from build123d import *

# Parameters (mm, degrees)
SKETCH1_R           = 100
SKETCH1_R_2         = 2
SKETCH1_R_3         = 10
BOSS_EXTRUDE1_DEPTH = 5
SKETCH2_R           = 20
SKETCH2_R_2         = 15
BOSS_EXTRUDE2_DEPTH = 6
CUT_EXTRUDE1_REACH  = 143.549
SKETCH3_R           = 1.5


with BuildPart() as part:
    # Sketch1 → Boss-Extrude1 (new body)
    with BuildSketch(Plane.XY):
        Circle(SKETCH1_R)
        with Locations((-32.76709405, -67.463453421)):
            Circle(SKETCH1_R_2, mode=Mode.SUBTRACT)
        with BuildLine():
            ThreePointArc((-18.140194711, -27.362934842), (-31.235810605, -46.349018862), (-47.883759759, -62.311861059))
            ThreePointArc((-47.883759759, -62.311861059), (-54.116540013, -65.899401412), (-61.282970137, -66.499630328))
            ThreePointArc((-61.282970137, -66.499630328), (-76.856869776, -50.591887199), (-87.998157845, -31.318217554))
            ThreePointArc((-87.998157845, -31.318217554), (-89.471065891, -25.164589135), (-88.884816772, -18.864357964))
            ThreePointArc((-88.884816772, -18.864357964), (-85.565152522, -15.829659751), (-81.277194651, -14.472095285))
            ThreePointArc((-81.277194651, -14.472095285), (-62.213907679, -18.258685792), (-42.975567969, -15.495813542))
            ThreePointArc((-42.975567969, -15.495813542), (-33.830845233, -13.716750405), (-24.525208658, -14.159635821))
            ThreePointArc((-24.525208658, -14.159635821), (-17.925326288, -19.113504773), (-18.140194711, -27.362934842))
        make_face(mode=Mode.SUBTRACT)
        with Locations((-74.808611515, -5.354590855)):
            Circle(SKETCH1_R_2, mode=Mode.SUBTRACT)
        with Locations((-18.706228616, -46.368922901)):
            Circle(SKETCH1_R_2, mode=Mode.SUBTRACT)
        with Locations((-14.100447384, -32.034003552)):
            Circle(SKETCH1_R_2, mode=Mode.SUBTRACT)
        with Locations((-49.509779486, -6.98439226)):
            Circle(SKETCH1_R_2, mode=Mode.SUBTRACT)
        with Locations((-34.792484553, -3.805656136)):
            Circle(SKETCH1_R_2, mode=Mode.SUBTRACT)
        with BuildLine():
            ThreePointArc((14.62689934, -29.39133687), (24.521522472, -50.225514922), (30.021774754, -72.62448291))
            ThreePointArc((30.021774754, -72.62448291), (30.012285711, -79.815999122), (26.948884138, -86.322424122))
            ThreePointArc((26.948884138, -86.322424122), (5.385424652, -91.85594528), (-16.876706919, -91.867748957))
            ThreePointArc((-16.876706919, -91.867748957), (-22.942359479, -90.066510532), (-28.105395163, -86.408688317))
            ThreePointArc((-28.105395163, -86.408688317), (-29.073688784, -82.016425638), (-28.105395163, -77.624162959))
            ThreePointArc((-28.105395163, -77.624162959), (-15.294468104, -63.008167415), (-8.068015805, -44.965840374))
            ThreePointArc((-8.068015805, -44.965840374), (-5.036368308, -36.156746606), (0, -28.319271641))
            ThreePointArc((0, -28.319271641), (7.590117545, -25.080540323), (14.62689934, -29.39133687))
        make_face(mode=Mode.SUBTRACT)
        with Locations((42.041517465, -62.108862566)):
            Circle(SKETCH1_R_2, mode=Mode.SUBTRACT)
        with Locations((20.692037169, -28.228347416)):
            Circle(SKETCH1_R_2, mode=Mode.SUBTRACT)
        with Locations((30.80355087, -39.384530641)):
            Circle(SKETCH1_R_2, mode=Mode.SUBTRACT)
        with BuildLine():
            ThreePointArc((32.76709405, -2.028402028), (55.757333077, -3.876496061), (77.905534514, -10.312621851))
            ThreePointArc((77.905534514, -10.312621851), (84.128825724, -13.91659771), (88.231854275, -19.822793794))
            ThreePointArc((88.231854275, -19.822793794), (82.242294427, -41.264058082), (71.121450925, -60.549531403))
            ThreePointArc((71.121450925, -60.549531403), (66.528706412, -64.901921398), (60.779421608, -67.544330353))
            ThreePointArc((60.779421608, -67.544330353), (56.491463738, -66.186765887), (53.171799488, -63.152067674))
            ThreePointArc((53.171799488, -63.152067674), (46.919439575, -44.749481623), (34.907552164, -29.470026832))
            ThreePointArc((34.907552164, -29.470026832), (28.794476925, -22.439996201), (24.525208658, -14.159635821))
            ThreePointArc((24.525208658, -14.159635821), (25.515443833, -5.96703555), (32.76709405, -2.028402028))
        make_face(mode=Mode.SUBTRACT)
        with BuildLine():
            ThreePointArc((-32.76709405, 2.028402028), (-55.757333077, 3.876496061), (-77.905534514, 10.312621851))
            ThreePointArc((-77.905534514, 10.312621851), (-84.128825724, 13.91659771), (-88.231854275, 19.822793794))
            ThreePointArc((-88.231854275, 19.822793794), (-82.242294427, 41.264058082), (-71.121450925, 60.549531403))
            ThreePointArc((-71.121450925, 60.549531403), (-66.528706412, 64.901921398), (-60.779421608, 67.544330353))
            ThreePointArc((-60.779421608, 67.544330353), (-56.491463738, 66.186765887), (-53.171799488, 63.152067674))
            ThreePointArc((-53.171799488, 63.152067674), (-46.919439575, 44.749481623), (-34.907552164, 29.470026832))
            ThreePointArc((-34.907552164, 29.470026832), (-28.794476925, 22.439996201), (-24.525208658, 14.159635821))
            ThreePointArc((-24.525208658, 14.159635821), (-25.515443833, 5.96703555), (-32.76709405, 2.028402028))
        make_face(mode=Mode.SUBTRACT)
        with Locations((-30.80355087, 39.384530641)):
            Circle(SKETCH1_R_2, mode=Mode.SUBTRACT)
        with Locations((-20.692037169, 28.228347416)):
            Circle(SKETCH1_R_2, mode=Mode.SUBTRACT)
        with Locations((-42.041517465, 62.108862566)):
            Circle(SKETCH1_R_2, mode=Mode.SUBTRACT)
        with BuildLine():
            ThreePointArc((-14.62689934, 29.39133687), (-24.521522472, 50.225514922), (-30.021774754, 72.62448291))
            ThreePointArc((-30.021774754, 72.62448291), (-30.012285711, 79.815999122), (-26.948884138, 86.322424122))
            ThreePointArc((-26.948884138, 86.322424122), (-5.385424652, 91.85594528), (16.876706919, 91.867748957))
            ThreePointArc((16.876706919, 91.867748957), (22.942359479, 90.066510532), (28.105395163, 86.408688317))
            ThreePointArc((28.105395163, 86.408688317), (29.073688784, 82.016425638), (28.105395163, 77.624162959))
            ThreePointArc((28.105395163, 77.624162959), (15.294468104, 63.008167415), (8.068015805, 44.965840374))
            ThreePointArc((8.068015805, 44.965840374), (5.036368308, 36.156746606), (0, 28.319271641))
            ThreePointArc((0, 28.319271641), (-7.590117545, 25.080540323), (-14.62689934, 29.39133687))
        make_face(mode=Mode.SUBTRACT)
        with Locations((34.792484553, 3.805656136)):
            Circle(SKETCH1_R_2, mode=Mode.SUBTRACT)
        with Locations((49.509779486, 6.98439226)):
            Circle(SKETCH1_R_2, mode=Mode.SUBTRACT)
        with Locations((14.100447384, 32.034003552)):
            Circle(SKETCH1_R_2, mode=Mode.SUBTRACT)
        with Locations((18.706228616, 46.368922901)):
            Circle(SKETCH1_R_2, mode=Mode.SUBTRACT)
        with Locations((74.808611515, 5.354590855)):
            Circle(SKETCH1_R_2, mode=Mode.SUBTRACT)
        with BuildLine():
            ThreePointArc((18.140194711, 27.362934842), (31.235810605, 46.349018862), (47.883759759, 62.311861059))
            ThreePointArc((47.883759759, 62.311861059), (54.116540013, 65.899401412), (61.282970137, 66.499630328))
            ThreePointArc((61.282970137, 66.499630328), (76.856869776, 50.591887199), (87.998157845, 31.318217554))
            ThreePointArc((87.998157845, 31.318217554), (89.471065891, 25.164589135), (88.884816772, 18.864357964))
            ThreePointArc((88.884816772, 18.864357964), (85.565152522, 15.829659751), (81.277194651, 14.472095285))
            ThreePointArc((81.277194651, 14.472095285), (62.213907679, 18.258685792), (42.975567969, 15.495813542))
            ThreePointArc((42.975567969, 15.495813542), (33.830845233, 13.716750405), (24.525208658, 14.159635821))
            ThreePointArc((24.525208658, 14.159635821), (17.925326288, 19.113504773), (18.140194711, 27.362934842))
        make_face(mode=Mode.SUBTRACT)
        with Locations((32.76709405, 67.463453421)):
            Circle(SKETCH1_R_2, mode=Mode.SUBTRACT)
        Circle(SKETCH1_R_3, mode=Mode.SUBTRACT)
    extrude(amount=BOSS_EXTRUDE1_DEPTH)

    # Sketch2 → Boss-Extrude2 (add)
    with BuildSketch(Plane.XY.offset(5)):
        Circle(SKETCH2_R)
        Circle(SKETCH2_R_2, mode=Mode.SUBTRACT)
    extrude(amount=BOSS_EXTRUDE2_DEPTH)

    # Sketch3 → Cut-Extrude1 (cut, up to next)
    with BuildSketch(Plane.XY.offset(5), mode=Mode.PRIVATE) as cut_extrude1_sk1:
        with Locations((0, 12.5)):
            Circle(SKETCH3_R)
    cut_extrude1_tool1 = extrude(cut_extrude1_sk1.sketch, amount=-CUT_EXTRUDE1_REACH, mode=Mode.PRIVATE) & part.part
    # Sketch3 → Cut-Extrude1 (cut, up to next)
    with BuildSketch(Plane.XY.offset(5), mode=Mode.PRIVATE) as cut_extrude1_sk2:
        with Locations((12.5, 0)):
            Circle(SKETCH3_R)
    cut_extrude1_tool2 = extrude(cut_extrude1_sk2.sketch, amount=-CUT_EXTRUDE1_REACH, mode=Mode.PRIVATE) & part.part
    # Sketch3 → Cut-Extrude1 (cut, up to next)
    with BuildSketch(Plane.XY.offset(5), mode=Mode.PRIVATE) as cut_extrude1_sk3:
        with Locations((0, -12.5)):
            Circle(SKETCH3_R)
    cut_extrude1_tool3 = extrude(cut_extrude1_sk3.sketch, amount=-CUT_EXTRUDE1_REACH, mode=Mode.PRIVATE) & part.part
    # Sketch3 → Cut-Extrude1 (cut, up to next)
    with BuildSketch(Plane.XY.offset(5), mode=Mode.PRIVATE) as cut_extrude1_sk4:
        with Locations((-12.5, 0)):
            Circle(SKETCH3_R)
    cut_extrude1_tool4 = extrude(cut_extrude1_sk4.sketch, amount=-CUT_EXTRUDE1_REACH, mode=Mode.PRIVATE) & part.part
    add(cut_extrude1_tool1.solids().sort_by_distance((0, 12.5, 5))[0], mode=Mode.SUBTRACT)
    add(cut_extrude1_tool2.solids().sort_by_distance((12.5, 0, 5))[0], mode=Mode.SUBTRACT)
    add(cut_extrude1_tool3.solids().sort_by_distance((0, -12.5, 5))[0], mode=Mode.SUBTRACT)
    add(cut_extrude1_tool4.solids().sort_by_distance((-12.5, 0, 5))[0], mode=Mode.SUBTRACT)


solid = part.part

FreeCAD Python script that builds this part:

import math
import FreeCAD as App
import Part
import Sketcher

doc = App.newDocument("Part")
body = doc.addObject("PartDesign::Body", "Body")

# Sketch on XY plane
sketch1 = body.newObject("Sketcher::SketchObject", "Sketch")
sketch1.AttachmentSupport = (doc.getObject("XY_Plane"), [""])
sketch1.MapMode = "FlatFace"
sketch1.addGeometry(Part.Circle(App.Vector(0, 0, 0), App.Vector(0, 0, 1), 100), False)
sketch1.addGeometry(Part.Circle(App.Vector(-32.767094, -67.463453, 0), App.Vector(0, 0, 1), 2), False)
sketch1.addGeometry(Part.Circle(App.Vector(-18.706229, -46.368923, 0), App.Vector(0, 0, 1), 2), False)
sketch1.addGeometry(Part.ArcOfCircle(Part.Circle(App.Vector(-26.024226, -23.03007, 0), App.Vector(0, 0, 1), 8.996203), math.radians(-28.792083), math.radians(80.408191)), False)
sketch1.addGeometry(Part.ArcOfCircle(Part.Circle(App.Vector(-118.083414, 27.563333, 0), App.Vector(0, 0, 1), 114.041843), math.radians(-52.007341), math.radians(-28.792083)), False)
sketch1.addGeometry(Part.ArcOfCircle(Part.Circle(App.Vector(-59.045881, -50.127455, 0), App.Vector(0, 0, 1), 16.524307), math.radians(-97.780695), math.radians(-47.507236)), False)
sketch1.addGeometry(Part.ArcOfCircle(Part.Circle(App.Vector(-5.940446, 3.258866, 0), App.Vector(0, 0, 1), 89.045173), math.radians(-157.15065), math.radians(-128.426535)), False)
sketch1.addGeometry(Part.ArcOfCircle(Part.Circle(App.Vector(-70.125924, -23.787302, 0), App.Vector(0, 0, 1), 19.394108), math.radians(165.295312), math.radians(202.84935)), False)
sketch1.addGeometry(Part.ArcOfCircle(Part.Circle(App.Vector(-80.342159, -24.876149, 0), App.Vector(0, 0, 1), 10.445986), math.radians(95.135501), math.radians(144.864499)), False)
sketch1.addGeometry(Part.ArcOfCircle(Part.Circle(App.Vector(-60.673454, 39.376197, 0), App.Vector(0, 0, 1), 57.655465), math.radians(-110.938135), math.radians(-72.123916)), False)
sketch1.addGeometry(Part.ArcOfCircle(Part.Circle(App.Vector(-31.016817, -52.573727, 0), App.Vector(0, 0, 1), 38.95874), math.radians(80.408191), math.radians(107.876084)), False)
sketch1.addGeometry(Part.Circle(App.Vector(-74.808612, -5.354591, 0), App.Vector(0, 0, 1), 2), False)
sketch1.addGeometry(Part.Circle(App.Vector(-49.509779, -6.984392, 0), App.Vector(0, 0, 1), 2), False)
sketch1.addGeometry(Part.Circle(App.Vector(-14.100447, -32.034004, 0), App.Vector(0, 0, 1), 2), False)
sketch1.addGeometry(Part.Circle(App.Vector(-34.792485, -3.805656, 0), App.Vector(0, 0, 1), 2), False)
sketch1.addGeometry(Part.ArcOfCircle(Part.Circle(App.Vector(6.932513, -34.052676, 0), App.Vector(0, 0, 1), 8.996203), math.radians(31.207917), math.radians(140.408191)), False)
sketch1.addGeometry(Part.ArcOfCircle(Part.Circle(App.Vector(-82.912253, -88.481569, 0), App.Vector(0, 0, 1), 114.041843), math.radians(7.992659), math.radians(31.207917)), False)
sketch1.addGeometry(Part.ArcOfCircle(Part.Circle(App.Vector(13.888709, -76.19896, 0), App.Vector(0, 0, 1), 16.524307), math.radians(-37.780695), math.radians(12.492764)), False)
sketch1.addGeometry(Part.ArcOfCircle(Part.Circle(App.Vector(-5.792484, -3.515144, 0), App.Vector(0, 0, 1), 89.045173), math.radians(-97.15065), math.radians(-68.426535)), False)
sketch1.addGeometry(Part.ArcOfCircle(Part.Circle(App.Vector(-14.462554, -72.624483, 0), App.Vector(0, 0, 1), 19.394108), math.radians(-134.704688), math.radians(-97.15065)), False)
sketch1.addGeometry(Part.ArcOfCircle(Part.Circle(App.Vector(-18.627702, -82.016426, 0), App.Vector(0, 0, 1), 10.445986), math.radians(155.135501), math.radians(204.864499)), False)
sketch1.addGeometry(Part.ArcOfCircle(Part.Circle(App.Vector(-64.437514, -32.856654, 0), App.Vector(0, 0, 1), 57.655465), math.radians(-50.938135), math.radians(-12.123916)), False)
sketch1.addGeometry(Part.ArcOfCircle(Part.Circle(App.Vector(30.021775, -53.148215, 0), App.Vector(0, 0, 1), 38.95874), math.radians(140.408191), math.radians(167.876084)), False)
sketch1.addGeometry(Part.Circle(App.Vector(42.041517, -62.108863, 0), App.Vector(0, 0, 1), 2), False)
sketch1.addGeometry(Part.Circle(App.Vector(20.692037, -28.228347, 0), App.Vector(0, 0, 1), 2), False)
sketch1.addGeometry(Part.Circle(App.Vector(30.803551, -39.384531, 0), App.Vector(0, 0, 1), 2), False)
sketch1.addGeometry(Part.Circle(App.Vector(0, 0, 0), App.Vector(0, 0, 1), 10), False)
sketch1.addGeometry(Part.ArcOfCircle(Part.Circle(App.Vector(32.956739, -11.022606, 0), App.Vector(0, 0, 1), 8.996203), math.radians(91.207917), math.radians(200.408191)), False)
sketch1.addGeometry(Part.ArcOfCircle(Part.Circle(App.Vector(35.17116, -116.044902, 0), App.Vector(0, 0, 1), 114.041843), math.radians(67.992659), math.radians(91.207917)), False)
sketch1.addGeometry(Part.ArcOfCircle(Part.Circle(App.Vector(72.93459, -26.071505, 0), App.Vector(0, 0, 1), 16.524307), math.radians(22.219305), math.radians(72.492764)), False)
sketch1.addGeometry(Part.ArcOfCircle(Part.Circle(App.Vector(0.147962, -6.77401, 0), App.Vector(0, 0, 1), 89.045173), math.radians(-37.15065), math.radians(-8.426535)), False)
sketch1.addGeometry(Part.ArcOfCircle(Part.Circle(App.Vector(55.66337, -48.837181, 0), App.Vector(0, 0, 1), 19.394108), math.radians(-74.704688), math.radians(-37.15065)), False)
sketch1.addGeometry(Part.ArcOfCircle(Part.Circle(App.Vector(61.714457, -57.140276, 0), App.Vector(0, 0, 1), 10.445986), math.radians(-144.864499), math.radians(-95.135501)), False)
sketch1.addGeometry(Part.ArcOfCircle(Part.Circle(App.Vector(-3.76406, -72.232851, 0), App.Vector(0, 0, 1), 57.655465), math.radians(9.061865), math.radians(47.876084)), False)
sketch1.addGeometry(Part.ArcOfCircle(Part.Circle(App.Vector(61.038592, -0.574488, 0), App.Vector(0, 0, 1), 38.95874), math.radians(-159.591809), math.radians(-132.123916)), False)
sketch1.addGeometry(Part.ArcOfCircle(Part.Circle(App.Vector(-32.956739, 11.022606, 0), App.Vector(0, 0, 1), 8.996203), math.radians(-88.792083), math.radians(20.408191)), False)
sketch1.addGeometry(Part.ArcOfCircle(Part.Circle(App.Vector(-35.17116, 116.044902, 0), App.Vector(0, 0, 1), 114.041843), math.radians(-112.007341), math.radians(-88.792083)), False)
sketch1.addGeometry(Part.ArcOfCircle(Part.Circle(App.Vector(-72.93459, 26.071505, 0), App.Vector(0, 0, 1), 16.524307), math.radians(-157.780695), math.radians(-107.507236)), False)
sketch1.addGeometry(Part.ArcOfCircle(Part.Circle(App.Vector(-0.147962, 6.77401, 0), App.Vector(0, 0, 1), 89.045173), math.radians(142.84935), math.radians(171.573465)), False)
sketch1.addGeometry(Part.ArcOfCircle(Part.Circle(App.Vector(-55.66337, 48.837181, 0), App.Vector(0, 0, 1), 19.394108), math.radians(105.295312), math.radians(142.84935)), False)
sketch1.addGeometry(Part.ArcOfCircle(Part.Circle(App.Vector(-61.714457, 57.140276, 0), App.Vector(0, 0, 1), 10.445986), math.radians(35.135501), math.radians(84.864499)), False)
sketch1.addGeometry(Part.ArcOfCircle(Part.Circle(App.Vector(3.76406, 72.232851, 0), App.Vector(0, 0, 1), 57.655465), math.radians(-170.938135), math.radians(-132.123916)), False)
sketch1.addGeometry(Part.ArcOfCircle(Part.Circle(App.Vector(-61.038592, 0.574488, 0), App.Vector(0, 0, 1), 38.95874), math.radians(20.408191), math.radians(47.876084)), False)
sketch1.addGeometry(Part.Circle(App.Vector(-30.803551, 39.384531, 0), App.Vector(0, 0, 1), 2), False)
sketch1.addGeometry(Part.Circle(App.Vector(-20.692037, 28.228347, 0), App.Vector(0, 0, 1), 2), False)
sketch1.addGeometry(Part.Circle(App.Vector(-42.041517, 62.108863, 0), App.Vector(0, 0, 1), 2), False)
sketch1.addGeometry(Part.ArcOfCircle(Part.Circle(App.Vector(-6.932513, 34.052676, 0), App.Vector(0, 0, 1), 8.996203), math.radians(-148.792083), math.radians(-39.591809)), False)
sketch1.addGeometry(Part.ArcOfCircle(Part.Circle(App.Vector(82.912253, 88.481569, 0), App.Vector(0, 0, 1), 114.041843), math.radians(-172.007341), math.radians(-148.792083)), False)
sketch1.addGeometry(Part.ArcOfCircle(Part.Circle(App.Vector(-13.888709, 76.19896, 0), App.Vector(0, 0, 1), 16.524307), math.radians(142.219305), math.radians(192.492764)), False)
sketch1.addGeometry(Part.ArcOfCircle(Part.Circle(App.Vector(5.792484, 3.515144, 0), App.Vector(0, 0, 1), 89.045173), math.radians(82.84935), math.radians(111.573465)), False)
sketch1.addGeometry(Part.ArcOfCircle(Part.Circle(App.Vector(14.462554, 72.624483, 0), App.Vector(0, 0, 1), 19.394108), math.radians(45.295312), math.radians(82.84935)), False)
sketch1.addGeometry(Part.ArcOfCircle(Part.Circle(App.Vector(18.627702, 82.016426, 0), App.Vector(0, 0, 1), 10.445986), math.radians(-24.864499), math.radians(24.864499)), False)
sketch1.addGeometry(Part.ArcOfCircle(Part.Circle(App.Vector(64.437514, 32.856654, 0), App.Vector(0, 0, 1), 57.655465), math.radians(129.061865), math.radians(167.876084)), False)
sketch1.addGeometry(Part.ArcOfCircle(Part.Circle(App.Vector(-30.021775, 53.148215, 0), App.Vector(0, 0, 1), 38.95874), math.radians(-39.591809), math.radians(-12.123916)), False)
sketch1.addGeometry(Part.Circle(App.Vector(34.792485, 3.805656, 0), App.Vector(0, 0, 1), 2), False)
sketch1.addGeometry(Part.Circle(App.Vector(14.100447, 32.034004, 0), App.Vector(0, 0, 1), 2), False)
sketch1.addGeometry(Part.Circle(App.Vector(49.509779, 6.984392, 0), App.Vector(0, 0, 1), 2), False)
sketch1.addGeometry(Part.Circle(App.Vector(74.808612, 5.354591, 0), App.Vector(0, 0, 1), 2), False)
sketch1.addGeometry(Part.ArcOfCircle(Part.Circle(App.Vector(26.024226, 23.03007, 0), App.Vector(0, 0, 1), 8.996203), math.radians(151.207917), math.radians(260.408191)), False)
sketch1.addGeometry(Part.ArcOfCircle(Part.Circle(App.Vector(118.083414, -27.563333, 0), App.Vector(0, 0, 1), 114.041843), math.radians(127.992659), math.radians(151.207917)), False)
sketch1.addGeometry(Part.ArcOfCircle(Part.Circle(App.Vector(59.045881, 50.127455, 0), App.Vector(0, 0, 1), 16.524307), math.radians(82.219305), math.radians(132.492764)), False)
sketch1.addGeometry(Part.ArcOfCircle(Part.Circle(App.Vector(5.940446, -3.258866, 0), App.Vector(0, 0, 1), 89.045173), math.radians(22.84935), math.radians(51.573465)), False)
sketch1.addGeometry(Part.ArcOfCircle(Part.Circle(App.Vector(70.125924, 23.787302, 0), App.Vector(0, 0, 1), 19.394108), math.radians(-14.704688), math.radians(22.84935)), False)
sketch1.addGeometry(Part.ArcOfCircle(Part.Circle(App.Vector(80.342159, 24.876149, 0), App.Vector(0, 0, 1), 10.445986), math.radians(-84.864499), math.radians(-35.135501)), False)
sketch1.addGeometry(Part.ArcOfCircle(Part.Circle(App.Vector(60.673454, -39.376197, 0), App.Vector(0, 0, 1), 57.655465), math.radians(69.061865), math.radians(107.876084)), False)
sketch1.addGeometry(Part.ArcOfCircle(Part.Circle(App.Vector(31.016817, 52.573727, 0), App.Vector(0, 0, 1), 38.95874), math.radians(-99.591809), math.radians(-72.123916)), False)
sketch1.addGeometry(Part.Circle(App.Vector(18.706229, 46.368923, 0), App.Vector(0, 0, 1), 2), False)
sketch1.addGeometry(Part.Circle(App.Vector(32.767094, 67.463453, 0), App.Vector(0, 0, 1), 2), False)
sketch1.addConstraint(Sketcher.Constraint("Coincident", 3, 1, 4, 2))
sketch1.addConstraint(Sketcher.Constraint("Coincident", 4, 1, 5, 2))
sketch1.addConstraint(Sketcher.Constraint("Coincident", 5, 1, 6, 2))
sketch1.addConstraint(Sketcher.Constraint("Coincident", 6, 1, 7, 2))
sketch1.addConstraint(Sketcher.Constraint("Coincident", 7, 1, 8, 2))
sketch1.addConstraint(Sketcher.Constraint("Coincident", 8, 1, 9, 1))
sketch1.addConstraint(Sketcher.Constraint("Coincident", 9, 2, 10, 2))
sketch1.addConstraint(Sketcher.Constraint("Coincident", 10, 1, 3, 2))
sketch1.addConstraint(Sketcher.Constraint("Coincident", 15, 1, 16, 2))
sketch1.addConstraint(Sketcher.Constraint("Coincident", 16, 1, 17, 2))
sketch1.addConstraint(Sketcher.Constraint("Coincident", 17, 1, 18, 2))
sketch1.addConstraint(Sketcher.Constraint("Coincident", 18, 1, 19, 2))
sketch1.addConstraint(Sketcher.Constraint("Coincident", 19, 1, 20, 2))
sketch1.addConstraint(Sketcher.Constraint("Coincident", 20, 1, 21, 1))
sketch1.addConstraint(Sketcher.Constraint("Coincident", 21, 2, 22, 2))
sketch1.addConstraint(Sketcher.Constraint("Coincident", 22, 1, 15, 2))
sketch1.addConstraint(Sketcher.Constraint("Coincident", 27, 1, 28, 2))
sketch1.addConstraint(Sketcher.Constraint("Coincident", 28, 1, 29, 2))
sketch1.addConstraint(Sketcher.Constraint("Coincident", 29, 1, 30, 2))
sketch1.addConstraint(Sketcher.Constraint("Coincident", 30, 1, 31, 2))
sketch1.addConstraint(Sketcher.Constraint("Coincident", 31, 1, 32, 2))
sketch1.addConstraint(Sketcher.Constraint("Coincident", 32, 1, 33, 1))
sketch1.addConstraint(Sketcher.Constraint("Coincident", 33, 2, 34, 2))
sketch1.addConstraint(Sketcher.Constraint("Coincident", 34, 1, 27, 2))
sketch1.addConstraint(Sketcher.Constraint("Coincident", 35, 1, 36, 2))
sketch1.addConstraint(Sketcher.Constraint("Coincident", 36, 1, 37, 2))
sketch1.addConstraint(Sketcher.Constraint("Coincident", 37, 1, 38, 2))
sketch1.addConstraint(Sketcher.Constraint("Coincident", 38, 1, 39, 2))
sketch1.addConstraint(Sketcher.Constraint("Coincident", 39, 1, 40, 2))
sketch1.addConstraint(Sketcher.Constraint("Coincident", 40, 1, 41, 1))
sketch1.addConstraint(Sketcher.Constraint("Coincident", 41, 2, 42, 2))
sketch1.addConstraint(Sketcher.Constraint("Coincident", 42, 1, 35, 2))
sketch1.addConstraint(Sketcher.Constraint("Coincident", 46, 1, 47, 2))
sketch1.addConstraint(Sketcher.Constraint("Coincident", 47, 1, 48, 2))
sketch1.addConstraint(Sketcher.Constraint("Coincident", 48, 1, 49, 2))
sketch1.addConstraint(Sketcher.Constraint("Coincident", 49, 1, 50, 2))
sketch1.addConstraint(Sketcher.Constraint("Coincident", 50, 1, 51, 2))
sketch1.addConstraint(Sketcher.Constraint("Coincident", 51, 1, 52, 1))
sketch1.addConstraint(Sketcher.Constraint("Coincident", 52, 2, 53, 2))
sketch1.addConstraint(Sketcher.Constraint("Coincident", 53, 1, 46, 2))
sketch1.addConstraint(Sketcher.Constraint("Coincident", 58, 1, 59, 2))
sketch1.addConstraint(Sketcher.Constraint("Coincident", 59, 1, 60, 2))
sketch1.addConstraint(Sketcher.Constraint("Coincident", 60, 1, 61, 2))
sketch1.addConstraint(Sketcher.Constraint("Coincident", 61, 1, 62, 2))
sketch1.addConstraint(Sketcher.Constraint("Coincident", 62, 1, 63, 2))
sketch1.addConstraint(Sketcher.Constraint("Coincident", 63, 1, 64, 1))
sketch1.addConstraint(Sketcher.Constraint("Coincident", 64, 2, 65, 2))
sketch1.addConstraint(Sketcher.Constraint("Coincident", 65, 1, 58, 2))
sketch1.addConstraint(Sketcher.Constraint("Coincident", 0, 3, -1, 1))
sketch1.addConstraint(Sketcher.Constraint("Coincident", 26, 3, -1, 1))
sketch1.addConstraint(Sketcher.Constraint("PointOnObject", 22, 1, -2))
sketch1.addConstraint(Sketcher.Constraint("PointOnObject", 53, 1, -2))
sketch1.addConstraint(Sketcher.Constraint("Diameter", 0, 200.0))
sketch1.addConstraint(Sketcher.Constraint("Diameter", 1, 4.0))
sketch1.addConstraint(Sketcher.Constraint("Diameter", 2, 4.0))
sketch1.addConstraint(Sketcher.Constraint("Diameter", 11, 4.0))
sketch1.addConstraint(Sketcher.Constraint("Diameter", 12, 4.0))
sketch1.addConstraint(Sketcher.Constraint("Diameter", 13, 4.0))
sketch1.addConstraint(Sketcher.Constraint("Diameter", 14, 4.0))
sketch1.addConstraint(Sketcher.Constraint("Diameter", 23, 4.0))
sketch1.addConstraint(Sketcher.Constraint("Diameter", 24, 4.0))
sketch1.addConstraint(Sketcher.Constraint("Diameter", 25, 4.0))
sketch1.addConstraint(Sketcher.Constraint("Diameter", 26, 20.0))
sketch1.addConstraint(Sketcher.Constraint("Diameter", 43, 4.0))
sketch1.addConstraint(Sketcher.Constraint("Diameter", 44, 4.0))
sketch1.addConstraint(Sketcher.Constraint("Diameter", 45, 4.0))
sketch1.addConstraint(Sketcher.Constraint("Diameter", 54, 4.0))
sketch1.addConstraint(Sketcher.Constraint("Diameter", 55, 4.0))
sketch1.addConstraint(Sketcher.Constraint("Diameter", 56, 4.0))
sketch1.addConstraint(Sketcher.Constraint("Diameter", 57, 4.0))
sketch1.addConstraint(Sketcher.Constraint("Diameter", 66, 4.0))
sketch1.addConstraint(Sketcher.Constraint("Diameter", 67, 4.0))
sketch1.addConstraint(Sketcher.Constraint("Radius", 10, 38.95874))
sketch1.addConstraint(Sketcher.Constraint("Radius", 22, 38.95874))
sketch1.addConstraint(Sketcher.Constraint("Radius", 34, 38.95874))
sketch1.addConstraint(Sketcher.Constraint("Radius", 42, 38.95874))
sketch1.addConstraint(Sketcher.Constraint("Radius", 53, 38.95874))
sketch1.addConstraint(Sketcher.Constraint("Radius", 65, 38.95874))
sketch1.addConstraint(Sketcher.Constraint("Radius", 3, 8.996203))
sketch1.addConstraint(Sketcher.Constraint("Radius", 4, 114.041843))
sketch1.addConstraint(Sketcher.Constraint("Radius", 5, 16.524307))
sketch1.addConstraint(Sketcher.Constraint("Radius", 6, 89.045173))
sketch1.addConstraint(Sketcher.Constraint("Radius", 7, 19.394108))
sketch1.addConstraint(Sketcher.Constraint("Radius", 8, 10.445986))
sketch1.addConstraint(Sketcher.Constraint("Radius", 9, 57.655465))
sketch1.addConstraint(Sketcher.Constraint("Radius", 15, 8.996203))
sketch1.addConstraint(Sketcher.Constraint("Radius", 16, 114.041843))
sketch1.addConstraint(Sketcher.Constraint("Radius", 17, 16.524307))
sketch1.addConstraint(Sketcher.Constraint("Radius", 18, 89.045173))
sketch1.addConstraint(Sketcher.Constraint("Radius", 19, 19.394108))
sketch1.addConstraint(Sketcher.Constraint("Radius", 20, 10.445986))
sketch1.addConstraint(Sketcher.Constraint("Radius", 21, 57.655465))
sketch1.addConstraint(Sketcher.Constraint("Radius", 27, 8.996203))
sketch1.addConstraint(Sketcher.Constraint("Radius", 28, 114.041843))
sketch1.addConstraint(Sketcher.Constraint("Radius", 29, 16.524307))
sketch1.addConstraint(Sketcher.Constraint("Radius", 30, 89.045173))
sketch1.addConstraint(Sketcher.Constraint("Radius", 31, 19.394108))
sketch1.addConstraint(Sketcher.Constraint("Radius", 32, 10.445986))
sketch1.addConstraint(Sketcher.Constraint("Radius", 33, 57.655465))
sketch1.addConstraint(Sketcher.Constraint("Radius", 35, 8.996203))
sketch1.addConstraint(Sketcher.Constraint("Radius", 36, 114.041843))
sketch1.addConstraint(Sketcher.Constraint("Radius", 37, 16.524307))
sketch1.addConstraint(Sketcher.Constraint("Radius", 38, 89.045173))
sketch1.addConstraint(Sketcher.Constraint("Radius", 39, 19.394108))
sketch1.addConstraint(Sketcher.Constraint("Radius", 40, 10.445986))
sketch1.addConstraint(Sketcher.Constraint("Radius", 41, 57.655465))
sketch1.addConstraint(Sketcher.Constraint("Radius", 46, 8.996203))
sketch1.addConstraint(Sketcher.Constraint("Radius", 47, 114.041843))
sketch1.addConstraint(Sketcher.Constraint("Radius", 48, 16.524307))
sketch1.addConstraint(Sketcher.Constraint("Radius", 49, 89.045173))
sketch1.addConstraint(Sketcher.Constraint("Radius", 50, 19.394108))
sketch1.addConstraint(Sketcher.Constraint("Radius", 51, 10.445986))
sketch1.addConstraint(Sketcher.Constraint("Radius", 52, 57.655465))
sketch1.addConstraint(Sketcher.Constraint("Radius", 58, 8.996203))
sketch1.addConstraint(Sketcher.Constraint("Radius", 59, 114.041843))
sketch1.addConstraint(Sketcher.Constraint("Radius", 60, 16.524307))
sketch1.addConstraint(Sketcher.Constraint("Radius", 61, 89.045173))
sketch1.addConstraint(Sketcher.Constraint("Radius", 62, 19.394108))
sketch1.addConstraint(Sketcher.Constraint("Radius", 63, 10.445986))
sketch1.addConstraint(Sketcher.Constraint("Radius", 64, 57.655465))
sketch1.addConstraint(Sketcher.Constraint("DistanceY", 7, 3, -1, 1, 23.787302))
sketch1.addConstraint(Sketcher.Constraint("DistanceY", -1, 1, 62, 3, 23.787302))
sketch1.addConstraint(Sketcher.Constraint("DistanceX", -1, 1, 15, 1, 14.626899))
sketch1.addConstraint(Sketcher.Constraint("DistanceX", -1, 1, 32, 1, 53.171799))
sketch1.addConstraint(Sketcher.Constraint("DistanceX", 40, 1, -1, 1, 53.171799))
sketch1.addConstraint(Sketcher.Constraint("DistanceX", 46, 1, -1, 1, 14.626899))
sketch1.addConstraint(Sketcher.Constraint("DistanceX", 2, 3, -1, 1, 18.706229))
sketch1.addConstraint(Sketcher.Constraint("DistanceY", 3, 3, -1, 1, 23.03007))
sketch1.addConstraint(Sketcher.Constraint("DistanceX", 5, 3, -1, 1, 59.045881))
sketch1.addConstraint(Sketcher.Constraint("DistanceX", 8, 3, -1, 1, 80.342159))
sketch1.addConstraint(Sketcher.Constraint("DistanceY", 8, 3, -1, 1, 24.876149))
sketch1.addConstraint(Sketcher.Constraint("DistanceX", 11, 3, -1, 1, 74.808612))
sketch1.addConstraint(Sketcher.Constraint("DistanceY", 11, 3, -1, 1, 5.354591))
sketch1.addConstraint(Sketcher.Constraint("DistanceX", 12, 3, -1, 1, 49.509779))
sketch1.addConstraint(Sketcher.Constraint("DistanceY", 16, 3, -1, 1, 88.481569))
sketch1.addConstraint(Sketcher.Constraint("DistanceX", -1, 1, 17, 3, 13.888709))
sketch1.addConstraint(Sketcher.Constraint("DistanceY", 17, 3, -1, 1, 76.19896))
sketch1.addConstraint(Sketcher.Constraint("DistanceX", -1, 1, 25, 3, 30.803551))
sketch1.addConstraint(Sketcher.Constraint("DistanceY", 25, 3, -1, 1, 39.384531))
sketch1.addConstraint(Sketcher.Constraint("DistanceX", -1, 1, 27, 3, 32.956739))
sketch1.addConstraint(Sketcher.Constraint("DistanceX", -1, 1, 28, 3, 35.17116))
sketch1.addConstraint(Sketcher.Constraint("DistanceX", -1, 1, 29, 3, 72.93459))
sketch1.addConstraint(Sketcher.Constraint("DistanceX", -1, 1, 30, 3, 0.147962))
sketch1.addConstraint(Sketcher.Constraint("DistanceY", 30, 3, -1, 1, 6.77401))
sketch1.addConstraint(Sketcher.Constraint("DistanceX", -1, 1, 31, 3, 55.66337))
sketch1.addConstraint(Sketcher.Constraint("DistanceX", 33, 3, -1, 1, 3.76406))
sketch1.addConstraint(Sketcher.Constraint("DistanceY", 33, 3, -1, 1, 72.232851))
sketch1.addConstraint(Sketcher.Constraint("DistanceY", 34, 3, -1, 1, 0.574488))
sketch1.addConstraint(Sketcher.Constraint("DistanceX", 35, 3, -1, 1, 32.956739))
sketch1.addConstraint(Sketcher.Constraint("DistanceX", 36, 3, -1, 1, 35.17116))
sketch1.addConstraint(Sketcher.Constraint("DistanceX", 37, 3, -1, 1, 72.93459))
sketch1.addConstraint(Sketcher.Constraint("DistanceX", 38, 3, -1, 1, 0.147962))
sketch1.addConstraint(Sketcher.Constraint("DistanceY", -1, 1, 38, 3, 6.77401))
sketch1.addConstraint(Sketcher.Constraint("DistanceX", 39, 3, -1, 1, 55.66337))
sketch1.addConstraint(Sketcher.Constraint("DistanceX", -1, 1, 41, 3, 3.76406))
sketch1.addConstraint(Sketcher.Constraint("DistanceY", -1, 1, 41, 3, 72.232851))
sketch1.addConstraint(Sketcher.Constraint("DistanceY", -1, 1, 42, 3, 0.574488))
sketch1.addConstraint(Sketcher.Constraint("DistanceX", 43, 3, -1, 1, 30.803551))
sketch1.addConstraint(Sketcher.Constraint("DistanceY", -1, 1, 43, 3, 39.384531))
sketch1.addConstraint(Sketcher.Constraint("DistanceY", -1, 1, 47, 3, 88.481569))
sketch1.addConstraint(Sketcher.Constraint("DistanceX", 48, 3, -1, 1, 13.888709))
sketch1.addConstraint(Sketcher.Constraint("DistanceY", -1, 1, 48, 3, 76.19896))
sketch1.addConstraint(Sketcher.Constraint("DistanceX", -1, 1, 56, 3, 49.509779))
sketch1.addConstraint(Sketcher.Constraint("DistanceX", -1, 1, 57, 3, 74.808612))
sketch1.addConstraint(Sketcher.Constraint("DistanceY", -1, 1, 57, 3, 5.354591))
sketch1.addConstraint(Sketcher.Constraint("DistanceY", -1, 1, 58, 3, 23.03007))
sketch1.addConstraint(Sketcher.Constraint("DistanceX", -1, 1, 60, 3, 59.045881))
sketch1.addConstraint(Sketcher.Constraint("DistanceX", -1, 1, 63, 3, 80.342159))
sketch1.addConstraint(Sketcher.Constraint("DistanceY", -1, 1, 63, 3, 24.876149))
sketch1.addConstraint(Sketcher.Constraint("DistanceX", -1, 1, 66, 3, 18.706229))
sketch1.addConstraint(Sketcher.Constraint("DistanceX", 4, 1, -1, 1, 47.88376))
sketch1.addConstraint(Sketcher.Constraint("DistanceY", 4, 1, -1, 1, 62.311861))
sketch1.addConstraint(Sketcher.Constraint("DistanceX", 5, 1, -1, 1, 61.28297))
sketch1.addConstraint(Sketcher.Constraint("DistanceX", 10, 1, -1, 1, 24.525209))
sketch1.addConstraint(Sketcher.Constraint("DistanceY", 18, 1, -1, 1, 91.867749))
sketch1.addConstraint(Sketcher.Constraint("DistanceY", 19, 1, -1, 1, 86.408688))
sketch1.addConstraint(Sketcher.Constraint("DistanceY", 21, 2, -1, 1, 44.96584))
sketch1.addConstraint(Sketcher.Constraint("DistanceY", 22, 1, -1, 1, 28.319272))
sketch1.addConstraint(Sketcher.Constraint("DistanceY", 28, 1, -1, 1, 10.312622))
sketch1.addConstraint(Sketcher.Constraint("DistanceX", -1, 1, 30, 1, 71.121451))
sketch1.addConstraint(Sketcher.Constraint("DistanceX", -1, 1, 31, 1, 60.779422))
sketch1.addConstraint(Sketcher.Constraint("DistanceX", -1, 1, 34, 1, 24.525209))
sketch1.addConstraint(Sketcher.Constraint("DistanceY", -1, 1, 36, 1, 10.312622))
sketch1.addConstraint(Sketcher.Constraint("DistanceX", 38, 1, -1, 1, 71.121451))
sketch1.addConstraint(Sketcher.Constraint("DistanceX", 39, 1, -1, 1, 60.779422))
sketch1.addConstraint(Sketcher.Constraint("DistanceX", 42, 1, -1, 1, 24.525209))
sketch1.addConstraint(Sketcher.Constraint("DistanceY", -1, 1, 49, 1, 91.867749))
sketch1.addConstraint(Sketcher.Constraint("DistanceY", -1, 1, 50, 1, 86.408688))
sketch1.addConstraint(Sketcher.Constraint("DistanceY", -1, 1, 52, 2, 44.96584))
sketch1.addConstraint(Sketcher.Constraint("DistanceY", -1, 1, 53, 1, 28.319272))
sketch1.addConstraint(Sketcher.Constraint("DistanceX", -1, 1, 59, 1, 47.88376))
sketch1.addConstraint(Sketcher.Constraint("DistanceY", -1, 1, 59, 1, 62.311861))
sketch1.addConstraint(Sketcher.Constraint("DistanceX", -1, 1, 60, 1, 61.28297))
sketch1.addConstraint(Sketcher.Constraint("DistanceX", -1, 1, 65, 1, 24.525209))
sketch1.addConstraint(Sketcher.Constraint("DistanceX", 1, 3, -1, 1, 32.767094))
sketch1.addConstraint(Sketcher.Constraint("DistanceY", 1, 3, -1, 1, 67.463453))
sketch1.addConstraint(Sketcher.Constraint("DistanceY", 2, 3, -1, 1, 46.368923))
sketch1.addConstraint(Sketcher.Constraint("DistanceX", 3, 3, -1, 1, 26.024226))
sketch1.addConstraint(Sketcher.Constraint("DistanceX", 6, 3, -1, 1, 5.940446))
sketch1.addConstraint(Sketcher.Constraint("DistanceX", 9, 3, -1, 1, 60.673454))
sketch1.addConstraint(Sketcher.Constraint("DistanceY", -1, 1, 9, 3, 39.376197))
sketch1.addConstraint(Sketcher.Constraint("DistanceY", 12, 3, -1, 1, 6.984392))
sketch1.addConstraint(Sketcher.Constraint("DistanceX", 13, 3, -1, 1, 14.100447))
sketch1.addConstraint(Sketcher.Constraint("DistanceY", 13, 3, -1, 1, 32.034004))
sketch1.addConstraint(Sketcher.Constraint("DistanceX", 14, 3, -1, 1, 34.792485))
sketch1.addConstraint(Sketcher.Constraint("DistanceY", 14, 3, -1, 1, 3.805656))
sketch1.addConstraint(Sketcher.Constraint("DistanceX", -1, 1, 15, 3, 6.932513))
sketch1.addConstraint(Sketcher.Constraint("DistanceX", 18, 3, -1, 1, 5.792484))
sketch1.addConstraint(Sketcher.Constraint("DistanceY", 18, 3, -1, 1, 3.515144))
sketch1.addConstraint(Sketcher.Constraint("DistanceX", 19, 3, -1, 1, 14.462554))
sketch1.addConstraint(Sketcher.Constraint("DistanceX", 20, 3, -1, 1, 18.627702))
sketch1.addConstraint(Sketcher.Constraint("DistanceX", 21, 3, -1, 1, 64.437514))
sketch1.addConstraint(Sketcher.Constraint("DistanceY", 21, 3, -1, 1, 32.856654))
sketch1.addConstraint(Sketcher.Constraint("DistanceX", -1, 1, 23, 3, 42.041517))
sketch1.addConstraint(Sketcher.Constraint("DistanceY", 23, 3, -1, 1, 62.108863))
sketch1.addConstraint(Sketcher.Constraint("DistanceX", -1, 1, 24, 3, 20.692037))
sketch1.addConstraint(Sketcher.Constraint("DistanceY", 24, 3, -1, 1, 28.228347))
sketch1.addConstraint(Sketcher.Constraint("DistanceX", 44, 3, -1, 1, 20.692037))
sketch1.addConstraint(Sketcher.Constraint("DistanceY", -1, 1, 44, 3, 28.228347))
sketch1.addConstraint(Sketcher.Constraint("DistanceX", 45, 3, -1, 1, 42.041517))
sketch1.addConstraint(Sketcher.Constraint("DistanceY", -1, 1, 45, 3, 62.108863))
sketch1.addConstraint(Sketcher.Constraint("DistanceX", 46, 3, -1, 1, 6.932513))
sketch1.addConstraint(Sketcher.Constraint("DistanceX", -1, 1, 49, 3, 5.792484))
sketch1.addConstraint(Sketcher.Constraint("DistanceY", -1, 1, 49, 3, 3.515144))
sketch1.addConstraint(Sketcher.Constraint("DistanceX", -1, 1, 50, 3, 14.462554))
sketch1.addConstraint(Sketcher.Constraint("DistanceX", -1, 1, 51, 3, 18.627702))
sketch1.addConstraint(Sketcher.Constraint("DistanceX", -1, 1, 52, 3, 64.437514))
sketch1.addConstraint(Sketcher.Constraint("DistanceY", -1, 1, 52, 3, 32.856654))
sketch1.addConstraint(Sketcher.Constraint("DistanceX", -1, 1, 54, 3, 34.792485))
sketch1.addConstraint(Sketcher.Constraint("DistanceY", -1, 1, 54, 3, 3.805656))
sketch1.addConstraint(Sketcher.Constraint("DistanceX", -1, 1, 55, 3, 14.100447))
sketch1.addConstraint(Sketcher.Constraint("DistanceY", -1, 1, 55, 3, 32.034004))
sketch1.addConstraint(Sketcher.Constraint("DistanceY", -1, 1, 56, 3, 6.984392))
sketch1.addConstraint(Sketcher.Constraint("DistanceX", -1, 1, 58, 3, 26.024226))
sketch1.addConstraint(Sketcher.Constraint("DistanceX", -1, 1, 61, 3, 5.940446))
sketch1.addConstraint(Sketcher.Constraint("DistanceX", -1, 1, 64, 3, 60.673454))
sketch1.addConstraint(Sketcher.Constraint("DistanceY", 64, 3, -1, 1, 39.376197))
sketch1.addConstraint(Sketcher.Constraint("DistanceY", -1, 1, 66, 3, 46.368923))
sketch1.addConstraint(Sketcher.Constraint("DistanceX", -1, 1, 67, 3, 32.767094))
sketch1.addConstraint(Sketcher.Constraint("DistanceY", -1, 1, 67, 3, 67.463453))
sketch1.addConstraint(Sketcher.Constraint("DistanceX", 3, 1, -1, 1, 18.140195))
sketch1.addConstraint(Sketcher.Constraint("DistanceX", 6, 1, -1, 1, 87.998158))
sketch1.addConstraint(Sketcher.Constraint("DistanceX", 9, 2, -1, 1, 42.975568))
sketch1.addConstraint(Sketcher.Constraint("DistanceX", -1, 1, 27, 1, 32.767094))
sketch1.addConstraint(Sketcher.Constraint("DistanceX", -1, 1, 33, 2, 34.907552))
sketch1.addConstraint(Sketcher.Constraint("DistanceX", 35, 1, -1, 1, 32.767094))
sketch1.addConstraint(Sketcher.Constraint("DistanceX", 41, 2, -1, 1, 34.907552))
sketch1.addConstraint(Sketcher.Constraint("DistanceX", -1, 1, 58, 1, 18.140195))
sketch1.addConstraint(Sketcher.Constraint("DistanceX", -1, 1, 61, 1, 87.998158))
sketch1.addConstraint(Sketcher.Constraint("DistanceX", -1, 1, 64, 2, 42.975568))
pad1 = body.newObject("PartDesign::Pad", "Pad")
pad1.Profile = sketch1
pad1.Length = 5

# Sketch on XY plane
sketch2 = body.newObject("Sketcher::SketchObject", "Sketch001")
sketch2.AttachmentSupport = (doc.getObject("XY_Plane"), [""])
sketch2.MapMode = "FlatFace"
sketch2.AttachmentOffset = App.Placement(App.Vector(0, 0, 5), App.Rotation())
sketch2.addGeometry(Part.Circle(App.Vector(0, 0, 0), App.Vector(0, 0, 1), 20), False)
sketch2.addGeometry(Part.Circle(App.Vector(0, 0, 0), App.Vector(0, 0, 1), 15), False)
sketch2.addConstraint(Sketcher.Constraint("Coincident", 0, 3, -1, 1))
sketch2.addConstraint(Sketcher.Constraint("Coincident", 1, 3, -1, 1))
sketch2.addConstraint(Sketcher.Constraint("Diameter", 0, 40.0))
sketch2.addConstraint(Sketcher.Constraint("Diameter", 1, 30.0))
pad2 = body.newObject("PartDesign::Pad", "Pad001")
pad2.Profile = sketch2
pad2.Length = 6

# Sketch on XY plane
sketch3 = body.newObject("Sketcher::SketchObject", "Sketch002")
sketch3.AttachmentSupport = (doc.getObject("XY_Plane"), [""])
sketch3.MapMode = "FlatFace"
sketch3.AttachmentOffset = App.Placement(App.Vector(0, 0, 5), App.Rotation())
sketch3.addGeometry(Part.Circle(App.Vector(0, 12.5, 0), App.Vector(0, 0, 1), 1.5), False)
sketch3.addConstraint(Sketcher.Constraint("PointOnObject", 0, 3, -2))
sketch3.addConstraint(Sketcher.Constraint("Diameter", 0, 3.0))
sketch3.addConstraint(Sketcher.Constraint("DistanceY", -1, 1, 0, 3, 12.5))
pocket1 = body.newObject("PartDesign::Pocket", "Pocket")
pocket1.Profile = sketch3
pocket1.Type = "UpToFirst"

# Sketch on XY plane
sketch4 = body.newObject("Sketcher::SketchObject", "Sketch003")
sketch4.AttachmentSupport = (doc.getObject("XY_Plane"), [""])
sketch4.MapMode = "FlatFace"
sketch4.AttachmentOffset = App.Placement(App.Vector(0, 0, 5), App.Rotation())
sketch4.addGeometry(Part.Circle(App.Vector(12.5, 0, 0), App.Vector(0, 0, 1), 1.5), False)
sketch4.addConstraint(Sketcher.Constraint("PointOnObject", 0, 3, -1))
sketch4.addConstraint(Sketcher.Constraint("Diameter", 0, 3.0))
sketch4.addConstraint(Sketcher.Constraint("DistanceX", -1, 1, 0, 3, 12.5))
pocket2 = body.newObject("PartDesign::Pocket", "Pocket001")
pocket2.Profile = sketch4
pocket2.Type = "UpToFirst"

# Sketch on XY plane
sketch5 = body.newObject("Sketcher::SketchObject", "Sketch004")
sketch5.AttachmentSupport = (doc.getObject("XY_Plane"), [""])
sketch5.MapMode = "FlatFace"
sketch5.AttachmentOffset = App.Placement(App.Vector(0, 0, 5), App.Rotation())
sketch5.addGeometry(Part.Circle(App.Vector(0, -12.5, 0), App.Vector(0, 0, 1), 1.5), False)
sketch5.addConstraint(Sketcher.Constraint("PointOnObject", 0, 3, -2))
sketch5.addConstraint(Sketcher.Constraint("Diameter", 0, 3.0))
sketch5.addConstraint(Sketcher.Constraint("DistanceY", 0, 3, -1, 1, 12.5))
pocket3 = body.newObject("PartDesign::Pocket", "Pocket002")
pocket3.Profile = sketch5
pocket3.Type = "UpToFirst"

# Sketch on XY plane
sketch6 = body.newObject("Sketcher::SketchObject", "Sketch005")
sketch6.AttachmentSupport = (doc.getObject("XY_Plane"), [""])
sketch6.MapMode = "FlatFace"
sketch6.AttachmentOffset = App.Placement(App.Vector(0, 0, 5), App.Rotation())
sketch6.addGeometry(Part.Circle(App.Vector(-12.5, 0, 0), App.Vector(0, 0, 1), 1.5), False)
sketch6.addConstraint(Sketcher.Constraint("PointOnObject", 0, 3, -1))
sketch6.addConstraint(Sketcher.Constraint("Diameter", 0, 3.0))
sketch6.addConstraint(Sketcher.Constraint("DistanceX", 0, 3, -1, 1, 12.5))
pocket4 = body.newObject("PartDesign::Pocket", "Pocket003")
pocket4.Profile = sketch6
pocket4.Type = "UpToFirst"

doc.recompute()
